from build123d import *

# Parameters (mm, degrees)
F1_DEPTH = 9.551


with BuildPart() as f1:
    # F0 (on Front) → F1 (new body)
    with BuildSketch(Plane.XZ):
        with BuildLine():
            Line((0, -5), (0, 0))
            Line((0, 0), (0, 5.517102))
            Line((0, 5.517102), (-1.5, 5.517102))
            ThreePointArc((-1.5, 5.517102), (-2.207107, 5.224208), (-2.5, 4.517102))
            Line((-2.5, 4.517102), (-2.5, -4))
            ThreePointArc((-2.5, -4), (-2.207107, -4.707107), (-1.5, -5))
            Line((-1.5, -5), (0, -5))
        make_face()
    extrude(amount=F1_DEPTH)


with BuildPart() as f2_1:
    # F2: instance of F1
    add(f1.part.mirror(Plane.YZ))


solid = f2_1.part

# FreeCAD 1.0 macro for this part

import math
import FreeCAD as App
import Part
import Sketcher
from FreeCAD import Vector

doc = App.newDocument("Part")
body = doc.addObject("PartDesign::Body", "Body")

sketch1 = doc.addObject("Sketcher::SketchObject", "Sketch")
body.addObject(sketch1)
sketch1.AttachmentSupport = (doc.XZ_Plane, [""])
sketch1.MapMode = "FlatFace"
sketch1.addGeometry(Part.LineSegment(Vector(0, -5, 0), Vector(0, 5.5, 0)), False)
sketch1.addGeometry(Part.LineSegment(Vector(0, 5.5, 0), Vector(-1.5, 5.5, 0)), False)
sketch1.addGeometry(Part.ArcOfCircle(Part.Circle(Vector(-1.5, 4.5, 0), Vector(0, 0, 1), 1), math.radians(90), math.radians(180)), False)
sketch1.addGeometry(Part.LineSegment(Vector(-2.5, 4.5, 0), Vector(-2.5, -4, 0)), False)
sketch1.addGeometry(Part.ArcOfCircle(Part.Circle(Vector(-1.5, -4, 0), Vector(0, 0, 1), 1), math.radians(180), math.radians(270)), False)
sketch1.addGeometry(Part.LineSegment(Vector(-1.5, -5, 0), Vector(0, -5, 0)), False)
sketch1.addConstraint(Sketcher.Constraint("Coincident", 0, 2, 1, 1))
sketch1.addConstraint(Sketcher.Constraint("Tangent", 1, 2, 2, 1))
sketch1.addConstraint(Sketcher.Constraint("Tangent", 2, 2, 3, 1))
sketch1.addConstraint(Sketcher.Constraint("Tangent", 3, 2, 4, 1))
sketch1.addConstraint(Sketcher.Constraint("Tangent", 4, 2, 5, 1))
sketch1.addConstraint(Sketcher.Constraint("Coincident", 5, 2, 0, 1))
sketch1.addConstraint(Sketcher.Constraint("Vertical", 0))
sketch1.addConstraint(Sketcher.Constraint("Horizontal", 1))
sketch1.addConstraint(Sketcher.Constraint("Vertical", 3))
sketch1.addConstraint(Sketcher.Constraint("Horizontal", 5))
sketch1.addConstraint(Sketcher.Constraint("Equal", 2, 4))
sketch1.addConstraint(Sketcher.Constraint("PointOnObject", 0, 2, -2))
sketch1.addConstraint(Sketcher.Constraint("Radius", 2, 1.000001))
sketch1.addConstraint(Sketcher.Constraint("DistanceX", 1, 2, 1, 1, 1.5))
sketch1.addConstraint(Sketcher.Constraint("DistanceY", 4, 3, -1, 1, 4.000001))
sketch1.addConstraint(Sketcher.Constraint("DistanceY", -1, 1, 2, 3, 4.517101))
pad1 = doc.addObject("PartDesign::Pad", "Pad")
body.addObject(pad1)
pad1.Profile = sketch1
pad1.Length = 9.551
body2 = doc.addObject("PartDesign::Body", "Body001")
doc.recompute()

mirroring = doc.addObject("Part::Mirroring", "Mirroring")
mirroring.Source = body
mirroring.Base = Vector(0, 0, 0)
mirroring.Normal = Vector(1, 0, 0)
body2.BaseFeature = mirroring
doc.recompute()
body.Visibility = False
mirroring.Visibility = False

doc.recompute()
